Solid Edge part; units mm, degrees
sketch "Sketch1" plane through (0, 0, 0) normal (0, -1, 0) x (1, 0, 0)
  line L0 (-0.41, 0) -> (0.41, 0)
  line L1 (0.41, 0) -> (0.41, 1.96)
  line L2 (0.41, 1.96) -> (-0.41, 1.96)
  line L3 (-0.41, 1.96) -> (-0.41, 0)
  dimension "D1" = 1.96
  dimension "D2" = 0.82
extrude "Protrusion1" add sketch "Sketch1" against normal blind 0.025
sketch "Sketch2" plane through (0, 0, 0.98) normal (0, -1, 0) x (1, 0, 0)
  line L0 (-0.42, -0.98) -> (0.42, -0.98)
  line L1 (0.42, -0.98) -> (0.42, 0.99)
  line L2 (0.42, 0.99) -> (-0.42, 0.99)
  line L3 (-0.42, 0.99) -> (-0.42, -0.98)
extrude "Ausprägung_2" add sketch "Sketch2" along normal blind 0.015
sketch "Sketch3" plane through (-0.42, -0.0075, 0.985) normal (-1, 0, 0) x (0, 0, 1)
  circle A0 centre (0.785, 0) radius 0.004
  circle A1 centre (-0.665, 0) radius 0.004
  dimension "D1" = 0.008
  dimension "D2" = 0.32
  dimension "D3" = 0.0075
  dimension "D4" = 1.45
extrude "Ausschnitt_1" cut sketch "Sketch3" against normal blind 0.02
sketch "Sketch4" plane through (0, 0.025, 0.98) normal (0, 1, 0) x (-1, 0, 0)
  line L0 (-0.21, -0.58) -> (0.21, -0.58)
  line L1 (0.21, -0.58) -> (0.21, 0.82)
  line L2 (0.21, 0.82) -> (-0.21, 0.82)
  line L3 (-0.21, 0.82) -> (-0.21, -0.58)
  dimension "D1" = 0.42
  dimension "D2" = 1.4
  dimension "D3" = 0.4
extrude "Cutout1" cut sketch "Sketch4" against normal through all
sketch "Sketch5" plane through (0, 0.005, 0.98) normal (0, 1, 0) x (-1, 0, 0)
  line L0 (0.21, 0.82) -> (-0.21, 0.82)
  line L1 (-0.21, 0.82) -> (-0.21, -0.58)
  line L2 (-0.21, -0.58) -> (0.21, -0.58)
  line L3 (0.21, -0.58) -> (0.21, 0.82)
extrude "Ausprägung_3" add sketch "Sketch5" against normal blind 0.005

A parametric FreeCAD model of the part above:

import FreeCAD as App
import Part
import Sketcher

V = App.Vector


def add_polygon(sketch, points):
    """Adds a closed chain of lines whose ends are joined by coincident constraints."""
    first, n = sketch.GeometryCount, len(points)
    for a, b in zip(points, points[1:] + points[:1]):
        sketch.addGeometry(Part.LineSegment(App.Vector(*a, 0), App.Vector(*b, 0)), False)
    for i in range(n):
        sketch.addConstraint(Sketcher.Constraint("Coincident", first + i, 2, first + (i + 1) % n, 1))

doc = App.newDocument("Part")
body = doc.addObject("PartDesign::Body", "Body")

sketch1 = body.newObject("Sketcher::SketchObject", "Sketch")
sketch1.AttachmentSupport = (doc.getObject("XZ_Plane"), [""])
sketch1.MapMode = "FlatFace"
add_polygon(sketch1, [(-0.41, 1.96), (-0.41, 0), (0.41, 0), (0.41, 1.96)])
sketch1.addConstraint(Sketcher.Constraint("Vertical", 0))
sketch1.addConstraint(Sketcher.Constraint("Horizontal", 1))
sketch1.addConstraint(Sketcher.Constraint("Vertical", 2))
sketch1.addConstraint(Sketcher.Constraint("Horizontal", 3))
sketch1.addConstraint(Sketcher.Constraint("Symmetric", 0, 2, 1, 2, -1, 1))
sketch1.addConstraint(Sketcher.Constraint("DistanceX", 0, 2, -1, 1, 0.41))
sketch1.addConstraint(Sketcher.Constraint("DistanceY", 0, 2, 0, 1, 1.96))
pad1 = body.newObject("PartDesign::Pad", "Pad")
pad1.Profile = sketch1
pad1.Length = 0.025
pad1.Reversed = True

sketch2 = body.newObject("Sketcher::SketchObject", "Sketch001")
sketch2.AttachmentSupport = (doc.getObject("XZ_Plane"), [""])
sketch2.MapMode = "FlatFace"
add_polygon(sketch2, [(-0.42, 1.97), (-0.42, 0), (0.42, 0), (0.42, 1.97)])
sketch2.addConstraint(Sketcher.Constraint("Vertical", 0))
sketch2.addConstraint(Sketcher.Constraint("Horizontal", 1))
sketch2.addConstraint(Sketcher.Constraint("Vertical", 2))
sketch2.addConstraint(Sketcher.Constraint("Horizontal", 3))
sketch2.addConstraint(Sketcher.Constraint("Symmetric", 0, 2, 1, 2, -1, 1))
sketch2.addConstraint(Sketcher.Constraint("DistanceX", 1, 1, 1, 2, 0.84))
sketch2.addConstraint(Sketcher.Constraint("DistanceY", 0, 2, 0, 1, 1.97))
pad2 = body.newObject("PartDesign::Pad", "Pad001")
pad2.Profile = sketch2
pad2.Length = 0.015

sketch3 = body.newObject("Sketcher::SketchObject", "Sketch002")
sketch3.AttachmentSupport = (doc.getObject("YZ_Plane"), [""])
sketch3.MapMode = "FlatFace"
sketch3.AttachmentOffset = App.Placement(V(0, 0, -0.42), App.Rotation())
sketch3.addGeometry(Part.Circle(V(-0.0075, 1.77, 0), V(0, 0, 1), 0.004), False)
sketch3.addGeometry(Part.Circle(V(-0.0075, 0.32, 0), V(0, 0, 1), 0.004), False)
sketch3.addConstraint(Sketcher.Constraint("Equal", 0, 1))
sketch3.addConstraint(Sketcher.Constraint("Vertical", 0, 3, 1, 3))
sketch3.addConstraint(Sketcher.Constraint("Diameter", 0, 0.008))
sketch3.addConstraint(Sketcher.Constraint("DistanceY", -1, 1, 0, 3, 1.77))
sketch3.addConstraint(Sketcher.Constraint("DistanceY", -1, 1, 1, 3, 0.32))
sketch3.addConstraint(Sketcher.Constraint("DistanceX", 0, 3, -1, 1, 0.0075))
pocket1 = body.newObject("PartDesign::Pocket", "Pocket")
pocket1.Profile = sketch3
pocket1.Length = 0.02
pocket1.Reversed = True

sketch4 = body.newObject("Sketcher::SketchObject", "Sketch003")
sketch4.AttachmentSupport = (doc.getObject("XZ_Plane"), [""])
sketch4.MapMode = "FlatFace"
sketch4.AttachmentOffset = App.Placement(V(0, 0, -0.025), App.Rotation())
add_polygon(sketch4, [(0.21, 1.8), (0.21, 0.4), (-0.21, 0.4), (-0.21, 1.8)])
sketch4.addConstraint(Sketcher.Constraint("Vertical", 0))
sketch4.addConstraint(Sketcher.Constraint("Horizontal", 1))
sketch4.addConstraint(Sketcher.Constraint("Vertical", 2))
sketch4.addConstraint(Sketcher.Constraint("Horizontal", 3))
sketch4.addConstraint(Sketcher.Constraint("DistanceX", -1, 1, 0, 2, 0.21))
sketch4.addConstraint(Sketcher.Constraint("DistanceX", 1, 2, -1, 1, 0.21))
sketch4.addConstraint(Sketcher.Constraint("DistanceY", 0, 2, 0, 1, 1.4))
sketch4.addConstraint(Sketcher.Constraint("DistanceY", -1, 1, 0, 2, 0.4))
pocket2 = body.newObject("PartDesign::Pocket", "Pocket001")
pocket2.Profile = sketch4
pocket2.Type = "ThroughAll"
pocket2.Reversed = True

sketch5 = body.newObject("Sketcher::SketchObject", "Sketch004")
sketch5.AttachmentSupport = (doc.getObject("XZ_Plane"), [""])
sketch5.MapMode = "FlatFace"
sketch5.AttachmentOffset = App.Placement(V(0, 0, -0.005), App.Rotation())
add_polygon(sketch5, [(-0.21, 0.4), (-0.21, 1.8), (0.21, 1.8), (0.21, 0.4)])
sketch5.addConstraint(Sketcher.Constraint("Vertical", 0))
sketch5.addConstraint(Sketcher.Constraint("Horizontal", 1))
sketch5.addConstraint(Sketcher.Constraint("Vertical", 2))
sketch5.addConstraint(Sketcher.Constraint("Horizontal", 3))
sketch5.addConstraint(Sketcher.Constraint("DistanceY", 0, 1, 0, 2, 1.4))
sketch5.addConstraint(Sketcher.Constraint("DistanceX", 1, 1, 1, 2, 0.42))
sketch5.addConstraint(Sketcher.Constraint("DistanceY", -1, 1, 0, 2, 1.8))
sketch5.addConstraint(Sketcher.Constraint("DistanceX", 0, 2, -1, 1, 0.21))
pad3 = body.newObject("PartDesign::Pad", "Pad002")
pad3.Profile = sketch5
pad3.Length = 0.005

doc.recompute()
